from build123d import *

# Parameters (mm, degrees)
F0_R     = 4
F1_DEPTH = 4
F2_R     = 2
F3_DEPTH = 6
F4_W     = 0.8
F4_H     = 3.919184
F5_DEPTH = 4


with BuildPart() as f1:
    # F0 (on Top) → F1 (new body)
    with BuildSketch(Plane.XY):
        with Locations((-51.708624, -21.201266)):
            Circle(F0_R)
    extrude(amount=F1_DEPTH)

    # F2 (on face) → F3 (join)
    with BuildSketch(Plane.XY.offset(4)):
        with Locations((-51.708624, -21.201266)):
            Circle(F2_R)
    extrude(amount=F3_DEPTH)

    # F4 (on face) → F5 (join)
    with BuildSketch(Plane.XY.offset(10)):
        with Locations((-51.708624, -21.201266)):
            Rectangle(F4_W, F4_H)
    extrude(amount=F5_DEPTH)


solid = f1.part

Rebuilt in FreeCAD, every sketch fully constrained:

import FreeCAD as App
import Part
import Sketcher
from FreeCAD import Vector
Q = App.Units.Quantity

doc = App.newDocument("Part")
params = doc.addObject("Spreadsheet::Sheet", "Params")
for row, (alias, value) in enumerate([
    ("sketch1_diameter", "8 mm"),
    ("pad1_length", "4 mm"),
    ("sketch2_diameter", "4 mm"),
    ("pad2_length", "6 mm"),
    ("sketch3_width", "0.8 mm"),
    ("pad3_length", "4 mm"),
], start=1):
    params.set(f"A{row}", alias)
    params.set(f"B{row}", "=" + value)
    params.setAlias(f"B{row}", alias)

body = doc.addObject("PartDesign::Body", "Body")

sketch1 = body.newObject("Sketcher::SketchObject", "Sketch")
sketch1.AttachmentSupport = (doc.getObject("XY_Plane"), [""])
sketch1.MapMode = "FlatFace"
sketch1.addGeometry(Part.Circle(Vector(-51.708624, -21.201266, 0), Vector(0, 0, 1), 4), False)
sketch1.addConstraint([
    Sketcher.Constraint("Diameter", 0, Q("8 mm")),
    Sketcher.Constraint("DistanceX", 0, 3, -1, 1, Q("51.708624 mm")),
    Sketcher.Constraint("DistanceY", 0, 3, -1, 1, Q("21.201266 mm")),
])
sketch1.setExpression("Constraints[0]", "Params.sketch1_diameter")
pad1 = body.newObject("PartDesign::Pad", "Pad")
pad1.Profile = sketch1
pad1.setExpression("Length", "Params.pad1_length")

sketch2 = body.newObject("Sketcher::SketchObject", "Sketch001")
sketch2.AttachmentSupport = (doc.getObject("XY_Plane"), [""])
sketch2.MapMode = "FlatFace"
sketch2.AttachmentOffset = App.Placement(Vector(0, 0, 4), App.Rotation())
sketch2.addGeometry(Part.Circle(Vector(-51.708624, -21.201266, 0), Vector(0, 0, 1), 2), False)
sketch2.addConstraint([
    Sketcher.Constraint("Diameter", 0, Q("4 mm")),
    Sketcher.Constraint("DistanceX", 0, 3, -1, 1, Q("51.708624 mm")),
    Sketcher.Constraint("DistanceY", 0, 3, -1, 1, Q("21.201266 mm")),
])
sketch2.setExpression("Constraints[0]", "Params.sketch2_diameter")
pad2 = body.newObject("PartDesign::Pad", "Pad001")
pad2.Profile = sketch2
pad2.setExpression("Length", "Params.pad2_length")

sketch3 = body.newObject("Sketcher::SketchObject", "Sketch002")
sketch3.AttachmentSupport = (doc.getObject("XY_Plane"), [""])
sketch3.MapMode = "FlatFace"
sketch3.AttachmentOffset = App.Placement(Vector(0, 0, 10), App.Rotation())
sketch3.addGeometry([
    Part.LineSegment(Vector(-52.108624, -19.241674, 0), Vector(-52.108624, -23.160858, 0)),
    Part.LineSegment(Vector(-52.108624, -23.160858, 0), Vector(-51.308624, -23.160858, 0)),
    Part.LineSegment(Vector(-51.308624, -23.160858, 0), Vector(-51.308624, -19.241674, 0)),
    Part.LineSegment(Vector(-51.308624, -19.241674, 0), Vector(-52.108624, -19.241674, 0)),
], False)
sketch3.addConstraint([
    Sketcher.Constraint("Coincident", 0, 2, 1, 1),
    Sketcher.Constraint("Coincident", 1, 2, 2, 1),
    Sketcher.Constraint("Coincident", 2, 2, 3, 1),
    Sketcher.Constraint("Coincident", 3, 2, 0, 1),
    Sketcher.Constraint("Vertical", 0),
    Sketcher.Constraint("Horizontal", 1),
    Sketcher.Constraint("Vertical", 2),
    Sketcher.Constraint("Horizontal", 3),
    Sketcher.Constraint("DistanceX", 1, 1, 1, 2, Q("0.8 mm")),
    Sketcher.Constraint("DistanceY", 0, 2, 0, 1, Q("3.919184 mm")),
    Sketcher.Constraint("DistanceY", 0, 2, -1, 1, Q("23.160858 mm")),
    Sketcher.Constraint("DistanceX", 0, 2, -1, 1, Q("52.108624 mm")),
])
sketch3.setExpression("Constraints[8]", "Params.sketch3_width")
pad3 = body.newObject("PartDesign::Pad", "Pad002")
pad3.Profile = sketch3
pad3.setExpression("Length", "Params.pad3_length")

doc.recompute()
